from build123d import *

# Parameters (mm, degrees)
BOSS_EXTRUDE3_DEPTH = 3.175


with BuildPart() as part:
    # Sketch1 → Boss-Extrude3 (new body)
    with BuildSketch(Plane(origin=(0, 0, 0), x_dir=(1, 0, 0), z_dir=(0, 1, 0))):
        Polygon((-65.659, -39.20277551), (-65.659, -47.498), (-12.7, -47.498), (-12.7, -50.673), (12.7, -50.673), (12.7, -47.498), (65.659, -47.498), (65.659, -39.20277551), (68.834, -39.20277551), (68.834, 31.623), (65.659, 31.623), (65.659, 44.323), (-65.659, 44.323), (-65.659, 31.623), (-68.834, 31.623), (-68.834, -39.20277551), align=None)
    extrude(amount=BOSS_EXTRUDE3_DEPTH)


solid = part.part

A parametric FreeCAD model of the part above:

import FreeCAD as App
import Part
import Sketcher
from FreeCAD import Vector
Q = App.Units.Quantity


def add_polygon(sketch, points):
    """Adds a closed chain of lines whose ends are joined by coincident constraints."""
    first, n = sketch.GeometryCount, len(points)
    for a, b in zip(points, points[1:] + points[:1]):
        sketch.addGeometry(Part.LineSegment(App.Vector(*a, 0), App.Vector(*b, 0)), False)
    for i in range(n):
        sketch.addConstraint(Sketcher.Constraint("Coincident", first + i, 2, first + (i + 1) % n, 1))

doc = App.newDocument("Part")
params = doc.addObject("Spreadsheet::Sheet", "Params")
for row, (alias, value) in enumerate([
    ("sketch1_width", "1 in"),
    ("sketch1_height", "0.5 in"),
    ("sketch1_width2", "5.17 in"),
    ("sketch1_width3", "0.125 in"),
    ("pad1_length", "0.125 in"),
], start=1):
    params.set(f"A{row}", alias)
    params.set(f"B{row}", "=" + value)
    params.setAlias(f"B{row}", alias)

body = doc.addObject("PartDesign::Body", "Body")

# Sketch on XZ plane
sketch1 = doc.addObject("Sketcher::SketchObject", "Sketch")
body.addObject(sketch1)
sketch1.AttachmentSupport = (doc.XZ_Plane, [""])
sketch1.MapMode = "FlatFace"
add_polygon(sketch1, [(-65.659, 39.202776), (-65.659, 47.498), (-12.7, 47.498), (-12.7, 50.673), (12.7, 50.673), (12.7, 47.498), (65.659, 47.498), (65.659, 39.202776), (68.834, 39.202776), (68.834, -31.623), (65.659, -31.623), (65.659, -44.323), (-65.659, -44.323), (-65.659, -31.623), (-68.834, -31.623), (-68.834, 39.202776)])  # lines 0-15
sketch1.addConstraint(Sketcher.Constraint("Vertical", 0))
sketch1.addConstraint(Sketcher.Constraint("Horizontal", 1))
sketch1.addConstraint(Sketcher.Constraint("Vertical", 2))
sketch1.addConstraint(Sketcher.Constraint("Horizontal", 3))
sketch1.addConstraint(Sketcher.Constraint("Vertical", 4))
sketch1.addConstraint(Sketcher.Constraint("Horizontal", 5))
sketch1.addConstraint(Sketcher.Constraint("Vertical", 6))
sketch1.addConstraint(Sketcher.Constraint("Horizontal", 7))
sketch1.addConstraint(Sketcher.Constraint("Vertical", 8))
sketch1.addConstraint(Sketcher.Constraint("Horizontal", 9))
sketch1.addConstraint(Sketcher.Constraint("Vertical", 10))
sketch1.addConstraint(Sketcher.Constraint("Horizontal", 11))
sketch1.addConstraint(Sketcher.Constraint("Vertical", 12))
sketch1.addConstraint(Sketcher.Constraint("Horizontal", 13))
sketch1.addConstraint(Sketcher.Constraint("Vertical", 14))
sketch1.addConstraint(Sketcher.Constraint("Horizontal", 15))
sketch1.addConstraint(Sketcher.Constraint("Symmetric", 1, 2, 4, 2, -2))
sketch1.addConstraint(Sketcher.Constraint("Symmetric", 9, 2, 12, 2, -2))
sketch1.addConstraint(Sketcher.Constraint("Symmetric", 7, 2, 14, 2, -2))
sketch1.addConstraint(Sketcher.Constraint("Vertical", 6, 2, 9, 2))
sketch1.addConstraint(Sketcher.Constraint("Vertical", 0, 2, 11, 2))
sketch1.addConstraint(Sketcher.Constraint("Equal", 15, 2))
sketch1.addConstraint(Sketcher.Constraint("DistanceX", 3, 1, 3, 2, Q("1 in")))
sketch1.addConstraint(Sketcher.Constraint("DistanceY", 10, 2, 10, 1, Q("0.5 in")))
sketch1.addConstraint(Sketcher.Constraint("DistanceX", 11, 2, 11, 1, Q("5.17 in")))
sketch1.addConstraint(Sketcher.Constraint("DistanceX", 7, 1, 7, 2, Q("0.125 in")))
sketch1.addConstraint(Sketcher.Constraint("DistanceY", -1, 1, 0, 2, Q("1.87 in")))
sketch1.addConstraint(Sketcher.Constraint("DistanceY", 8, 2, 3, 2, Q("3.24 in")))
sketch1.addConstraint(Sketcher.Constraint("DistanceY", 0, 1, 0, 2, 8.295224))
sketch1.setExpression("Constraints[38]", "Params.sketch1_width")
sketch1.setExpression("Constraints[39]", "Params.sketch1_height")
sketch1.setExpression("Constraints[40]", "Params.sketch1_width2")
sketch1.setExpression("Constraints[41]", "Params.sketch1_width3")
pad1 = doc.addObject("PartDesign::Pad", "Pad")
body.addObject(pad1)
pad1.Profile = sketch1
pad1.setExpression("Length", "Params.pad1_length")
pad1.Reversed = True

doc.recompute()
